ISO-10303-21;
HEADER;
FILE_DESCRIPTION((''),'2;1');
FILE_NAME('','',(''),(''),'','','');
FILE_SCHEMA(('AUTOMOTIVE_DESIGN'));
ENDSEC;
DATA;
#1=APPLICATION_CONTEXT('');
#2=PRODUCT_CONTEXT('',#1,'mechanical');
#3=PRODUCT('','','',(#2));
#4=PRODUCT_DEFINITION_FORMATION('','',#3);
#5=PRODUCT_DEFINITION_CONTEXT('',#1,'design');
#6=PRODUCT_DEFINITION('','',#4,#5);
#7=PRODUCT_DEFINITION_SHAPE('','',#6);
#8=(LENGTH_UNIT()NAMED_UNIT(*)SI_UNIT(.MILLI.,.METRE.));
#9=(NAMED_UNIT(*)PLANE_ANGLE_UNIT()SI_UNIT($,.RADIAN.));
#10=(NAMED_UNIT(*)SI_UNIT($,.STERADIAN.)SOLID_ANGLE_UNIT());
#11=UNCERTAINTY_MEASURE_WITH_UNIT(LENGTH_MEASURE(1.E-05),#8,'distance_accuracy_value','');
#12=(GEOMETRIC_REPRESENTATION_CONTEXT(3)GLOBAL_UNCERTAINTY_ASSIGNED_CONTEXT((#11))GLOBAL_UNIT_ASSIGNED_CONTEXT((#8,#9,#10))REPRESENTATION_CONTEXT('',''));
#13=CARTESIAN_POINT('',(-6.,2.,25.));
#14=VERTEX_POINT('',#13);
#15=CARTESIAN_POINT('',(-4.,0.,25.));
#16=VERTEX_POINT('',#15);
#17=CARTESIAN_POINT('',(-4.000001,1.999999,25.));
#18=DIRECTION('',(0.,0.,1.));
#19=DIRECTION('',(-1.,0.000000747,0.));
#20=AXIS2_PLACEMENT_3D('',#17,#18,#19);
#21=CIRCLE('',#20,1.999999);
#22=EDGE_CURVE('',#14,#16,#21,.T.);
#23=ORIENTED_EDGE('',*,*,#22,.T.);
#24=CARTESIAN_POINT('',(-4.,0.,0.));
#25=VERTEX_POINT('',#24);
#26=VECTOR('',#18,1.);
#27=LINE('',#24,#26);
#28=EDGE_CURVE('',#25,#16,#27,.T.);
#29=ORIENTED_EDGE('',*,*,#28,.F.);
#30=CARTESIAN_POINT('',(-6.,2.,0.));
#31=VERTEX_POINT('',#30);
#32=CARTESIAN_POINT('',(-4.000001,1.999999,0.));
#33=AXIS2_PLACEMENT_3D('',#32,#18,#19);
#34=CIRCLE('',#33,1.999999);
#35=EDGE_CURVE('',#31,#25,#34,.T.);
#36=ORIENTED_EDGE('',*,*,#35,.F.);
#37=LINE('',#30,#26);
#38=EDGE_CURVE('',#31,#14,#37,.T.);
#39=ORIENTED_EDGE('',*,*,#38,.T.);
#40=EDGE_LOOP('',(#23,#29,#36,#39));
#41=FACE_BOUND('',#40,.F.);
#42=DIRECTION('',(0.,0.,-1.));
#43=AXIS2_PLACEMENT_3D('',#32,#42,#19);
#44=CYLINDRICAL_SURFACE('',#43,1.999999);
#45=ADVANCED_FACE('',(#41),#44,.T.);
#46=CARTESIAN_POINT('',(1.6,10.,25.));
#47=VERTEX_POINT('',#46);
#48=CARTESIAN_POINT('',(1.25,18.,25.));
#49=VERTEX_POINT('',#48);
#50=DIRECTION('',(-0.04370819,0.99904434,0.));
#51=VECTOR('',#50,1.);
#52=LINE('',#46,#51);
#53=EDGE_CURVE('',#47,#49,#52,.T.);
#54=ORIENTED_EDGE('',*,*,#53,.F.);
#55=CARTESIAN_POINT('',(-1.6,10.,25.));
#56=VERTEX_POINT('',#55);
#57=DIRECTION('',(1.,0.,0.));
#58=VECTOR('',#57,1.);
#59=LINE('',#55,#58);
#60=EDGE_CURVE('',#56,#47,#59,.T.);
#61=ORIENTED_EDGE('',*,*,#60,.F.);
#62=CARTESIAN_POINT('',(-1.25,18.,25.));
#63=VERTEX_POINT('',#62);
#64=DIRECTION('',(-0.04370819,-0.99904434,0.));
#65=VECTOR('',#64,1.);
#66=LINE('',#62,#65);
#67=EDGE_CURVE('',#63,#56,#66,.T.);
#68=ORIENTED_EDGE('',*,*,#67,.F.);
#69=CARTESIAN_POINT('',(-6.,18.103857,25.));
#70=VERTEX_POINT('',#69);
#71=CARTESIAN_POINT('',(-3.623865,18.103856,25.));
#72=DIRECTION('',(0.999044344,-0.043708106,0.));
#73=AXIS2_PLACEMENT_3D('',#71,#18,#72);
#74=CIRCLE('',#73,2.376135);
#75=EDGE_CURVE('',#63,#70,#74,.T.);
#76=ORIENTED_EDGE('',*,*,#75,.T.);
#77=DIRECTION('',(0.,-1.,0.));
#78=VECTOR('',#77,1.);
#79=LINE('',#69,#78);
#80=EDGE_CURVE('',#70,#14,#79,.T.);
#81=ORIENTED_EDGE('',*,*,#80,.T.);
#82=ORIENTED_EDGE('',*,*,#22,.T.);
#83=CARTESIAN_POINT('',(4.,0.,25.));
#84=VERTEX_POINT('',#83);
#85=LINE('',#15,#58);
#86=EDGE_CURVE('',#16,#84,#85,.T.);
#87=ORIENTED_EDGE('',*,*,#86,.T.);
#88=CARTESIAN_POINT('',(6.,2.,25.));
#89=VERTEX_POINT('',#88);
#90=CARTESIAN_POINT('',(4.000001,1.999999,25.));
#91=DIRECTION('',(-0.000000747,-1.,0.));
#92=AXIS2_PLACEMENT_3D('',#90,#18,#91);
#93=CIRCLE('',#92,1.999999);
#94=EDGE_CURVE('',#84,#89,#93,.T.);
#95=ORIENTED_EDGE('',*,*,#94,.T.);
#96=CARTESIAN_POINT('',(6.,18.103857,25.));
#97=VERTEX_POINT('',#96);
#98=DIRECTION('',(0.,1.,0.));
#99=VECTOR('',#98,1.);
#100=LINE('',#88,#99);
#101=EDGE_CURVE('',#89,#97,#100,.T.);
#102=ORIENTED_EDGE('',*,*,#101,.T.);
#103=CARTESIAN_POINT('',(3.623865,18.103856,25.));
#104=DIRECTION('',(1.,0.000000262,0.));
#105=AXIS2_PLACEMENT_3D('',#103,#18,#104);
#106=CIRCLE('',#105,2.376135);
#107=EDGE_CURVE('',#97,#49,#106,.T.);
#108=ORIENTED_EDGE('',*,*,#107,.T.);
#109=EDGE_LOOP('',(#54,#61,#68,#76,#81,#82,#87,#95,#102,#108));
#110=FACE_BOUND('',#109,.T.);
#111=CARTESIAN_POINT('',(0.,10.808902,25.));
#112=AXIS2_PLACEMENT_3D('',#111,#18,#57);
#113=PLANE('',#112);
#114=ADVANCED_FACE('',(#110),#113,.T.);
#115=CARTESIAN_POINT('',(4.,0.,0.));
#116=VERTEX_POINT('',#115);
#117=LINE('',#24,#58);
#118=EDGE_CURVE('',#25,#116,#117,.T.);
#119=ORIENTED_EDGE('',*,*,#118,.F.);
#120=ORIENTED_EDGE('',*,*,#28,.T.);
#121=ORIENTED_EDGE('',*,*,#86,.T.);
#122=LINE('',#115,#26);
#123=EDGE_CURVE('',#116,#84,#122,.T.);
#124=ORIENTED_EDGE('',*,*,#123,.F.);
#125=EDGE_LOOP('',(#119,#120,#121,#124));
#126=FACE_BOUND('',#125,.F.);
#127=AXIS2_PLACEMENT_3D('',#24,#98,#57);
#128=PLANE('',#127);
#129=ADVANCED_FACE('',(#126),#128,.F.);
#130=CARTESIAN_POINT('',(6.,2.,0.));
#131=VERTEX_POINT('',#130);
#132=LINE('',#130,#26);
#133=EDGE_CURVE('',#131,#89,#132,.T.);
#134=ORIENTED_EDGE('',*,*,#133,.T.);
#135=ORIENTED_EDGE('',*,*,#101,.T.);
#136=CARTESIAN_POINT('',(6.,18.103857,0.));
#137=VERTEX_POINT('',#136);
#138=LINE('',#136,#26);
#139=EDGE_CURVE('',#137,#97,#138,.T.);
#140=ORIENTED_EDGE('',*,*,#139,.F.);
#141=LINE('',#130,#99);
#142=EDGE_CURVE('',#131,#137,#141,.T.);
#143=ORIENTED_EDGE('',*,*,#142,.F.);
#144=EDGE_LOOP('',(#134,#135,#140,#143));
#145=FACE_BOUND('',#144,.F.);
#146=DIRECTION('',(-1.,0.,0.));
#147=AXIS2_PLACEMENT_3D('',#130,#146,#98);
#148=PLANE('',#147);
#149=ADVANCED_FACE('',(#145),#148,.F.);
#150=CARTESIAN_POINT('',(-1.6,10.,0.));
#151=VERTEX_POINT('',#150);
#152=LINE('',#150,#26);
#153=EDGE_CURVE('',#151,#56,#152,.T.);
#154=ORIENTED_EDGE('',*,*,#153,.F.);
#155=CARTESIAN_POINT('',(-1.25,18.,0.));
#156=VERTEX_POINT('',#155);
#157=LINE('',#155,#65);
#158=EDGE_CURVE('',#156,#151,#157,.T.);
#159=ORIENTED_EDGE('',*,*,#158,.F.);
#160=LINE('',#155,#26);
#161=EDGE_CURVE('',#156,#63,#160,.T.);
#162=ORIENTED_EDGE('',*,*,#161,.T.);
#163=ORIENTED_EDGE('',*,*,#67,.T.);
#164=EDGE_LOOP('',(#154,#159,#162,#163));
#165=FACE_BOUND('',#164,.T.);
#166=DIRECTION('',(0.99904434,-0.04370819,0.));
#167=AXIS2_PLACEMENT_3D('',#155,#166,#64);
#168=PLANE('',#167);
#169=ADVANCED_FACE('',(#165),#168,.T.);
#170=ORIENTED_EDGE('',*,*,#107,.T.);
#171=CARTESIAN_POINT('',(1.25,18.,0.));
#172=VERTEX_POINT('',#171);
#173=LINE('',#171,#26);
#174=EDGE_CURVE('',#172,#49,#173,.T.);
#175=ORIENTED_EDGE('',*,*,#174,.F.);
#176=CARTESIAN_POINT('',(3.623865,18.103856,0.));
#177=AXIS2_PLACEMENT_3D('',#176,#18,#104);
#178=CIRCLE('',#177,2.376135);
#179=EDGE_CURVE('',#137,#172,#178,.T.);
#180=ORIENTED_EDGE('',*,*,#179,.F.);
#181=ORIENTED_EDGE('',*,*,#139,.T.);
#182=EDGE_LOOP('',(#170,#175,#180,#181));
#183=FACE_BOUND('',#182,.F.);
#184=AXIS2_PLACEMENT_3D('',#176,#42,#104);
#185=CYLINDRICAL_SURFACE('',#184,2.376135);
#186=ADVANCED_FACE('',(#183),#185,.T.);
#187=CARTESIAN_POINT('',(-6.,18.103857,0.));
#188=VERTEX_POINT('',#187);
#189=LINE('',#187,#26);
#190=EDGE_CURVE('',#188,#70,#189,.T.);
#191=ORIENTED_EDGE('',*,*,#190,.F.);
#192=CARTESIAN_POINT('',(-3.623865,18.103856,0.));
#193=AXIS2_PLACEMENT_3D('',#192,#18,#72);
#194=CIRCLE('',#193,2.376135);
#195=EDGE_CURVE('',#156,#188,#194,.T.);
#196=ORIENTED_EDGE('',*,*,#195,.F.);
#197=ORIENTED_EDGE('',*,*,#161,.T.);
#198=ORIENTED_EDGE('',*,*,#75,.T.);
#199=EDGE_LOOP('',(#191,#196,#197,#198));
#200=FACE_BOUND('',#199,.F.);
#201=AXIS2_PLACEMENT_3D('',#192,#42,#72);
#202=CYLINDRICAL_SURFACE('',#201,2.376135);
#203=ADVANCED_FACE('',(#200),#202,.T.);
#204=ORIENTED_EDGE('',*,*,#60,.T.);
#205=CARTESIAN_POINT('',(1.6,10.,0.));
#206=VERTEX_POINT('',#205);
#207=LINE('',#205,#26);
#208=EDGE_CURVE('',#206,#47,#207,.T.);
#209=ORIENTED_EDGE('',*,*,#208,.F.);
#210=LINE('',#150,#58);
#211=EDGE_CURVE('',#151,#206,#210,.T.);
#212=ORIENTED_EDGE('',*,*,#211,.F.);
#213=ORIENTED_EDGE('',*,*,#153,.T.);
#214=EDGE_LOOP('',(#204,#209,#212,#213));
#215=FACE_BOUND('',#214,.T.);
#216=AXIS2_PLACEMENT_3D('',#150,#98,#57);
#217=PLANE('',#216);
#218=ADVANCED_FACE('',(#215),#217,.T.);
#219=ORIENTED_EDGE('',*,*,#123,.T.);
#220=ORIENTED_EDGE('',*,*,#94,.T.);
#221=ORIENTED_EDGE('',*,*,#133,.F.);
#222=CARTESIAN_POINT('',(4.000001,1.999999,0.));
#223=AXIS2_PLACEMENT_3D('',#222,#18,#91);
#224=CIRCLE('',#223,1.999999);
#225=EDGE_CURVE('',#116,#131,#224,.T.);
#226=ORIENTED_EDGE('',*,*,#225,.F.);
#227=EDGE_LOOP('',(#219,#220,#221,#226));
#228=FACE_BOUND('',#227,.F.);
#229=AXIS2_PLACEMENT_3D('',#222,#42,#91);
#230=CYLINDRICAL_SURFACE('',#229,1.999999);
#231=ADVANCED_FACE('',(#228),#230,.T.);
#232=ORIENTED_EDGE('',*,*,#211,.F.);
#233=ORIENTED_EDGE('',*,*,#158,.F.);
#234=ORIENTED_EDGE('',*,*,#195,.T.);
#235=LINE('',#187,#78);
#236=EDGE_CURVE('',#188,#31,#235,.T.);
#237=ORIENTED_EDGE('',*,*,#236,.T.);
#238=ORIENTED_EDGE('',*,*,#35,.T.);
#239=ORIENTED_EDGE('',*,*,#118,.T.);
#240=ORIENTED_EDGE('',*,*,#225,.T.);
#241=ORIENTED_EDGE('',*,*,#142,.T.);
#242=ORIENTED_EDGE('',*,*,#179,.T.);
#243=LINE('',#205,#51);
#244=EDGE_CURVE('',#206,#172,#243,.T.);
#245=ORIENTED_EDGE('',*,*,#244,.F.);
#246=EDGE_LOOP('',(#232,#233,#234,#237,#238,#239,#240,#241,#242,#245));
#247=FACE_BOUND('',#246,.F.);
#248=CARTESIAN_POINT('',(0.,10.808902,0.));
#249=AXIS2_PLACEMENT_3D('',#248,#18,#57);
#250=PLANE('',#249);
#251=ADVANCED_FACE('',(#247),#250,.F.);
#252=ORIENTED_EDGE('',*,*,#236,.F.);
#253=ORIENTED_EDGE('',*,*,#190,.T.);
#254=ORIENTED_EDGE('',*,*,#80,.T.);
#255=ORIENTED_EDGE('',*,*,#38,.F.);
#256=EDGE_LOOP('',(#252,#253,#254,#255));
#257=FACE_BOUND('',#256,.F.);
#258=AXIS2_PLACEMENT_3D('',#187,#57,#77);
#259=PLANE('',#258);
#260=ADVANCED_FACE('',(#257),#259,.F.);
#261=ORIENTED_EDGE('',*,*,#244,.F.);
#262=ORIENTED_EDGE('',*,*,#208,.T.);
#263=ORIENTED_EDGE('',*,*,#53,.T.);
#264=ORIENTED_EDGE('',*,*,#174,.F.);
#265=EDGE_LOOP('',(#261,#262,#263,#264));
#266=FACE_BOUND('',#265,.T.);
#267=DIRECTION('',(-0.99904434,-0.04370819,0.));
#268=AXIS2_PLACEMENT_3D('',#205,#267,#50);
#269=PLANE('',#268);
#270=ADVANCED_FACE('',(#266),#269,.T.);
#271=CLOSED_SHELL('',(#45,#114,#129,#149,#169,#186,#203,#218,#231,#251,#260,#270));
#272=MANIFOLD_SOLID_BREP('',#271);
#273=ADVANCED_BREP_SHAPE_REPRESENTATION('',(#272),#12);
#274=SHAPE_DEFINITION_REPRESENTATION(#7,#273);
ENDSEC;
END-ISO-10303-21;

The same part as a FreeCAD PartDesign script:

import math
import FreeCAD as App
import Part
import Sketcher

V = App.Vector
Q = App.Units.Quantity

doc = App.newDocument("Part")
params = doc.addObject("Spreadsheet::Sheet", "Params")
for row, (alias, value) in enumerate([
    ("sketch1_radius", "1.999999 mm"),
    ("sketch1_width", "8 mm"),
    ("sketch1_width2", "3.2 mm"),
    ("pad1_length", "25 mm"),
], start=1):
    params.set(f"A{row}", alias)
    params.set(f"B{row}", "=" + value)
    params.setAlias(f"B{row}", alias)

body = doc.addObject("PartDesign::Body", "Body")

# Sketch on XY plane
sketch1 = body.newObject("Sketcher::SketchObject", "Sketch")
sketch1.AttachmentSupport = (doc.getObject("XY_Plane"), [""])
sketch1.MapMode = "FlatFace"
sketch1.addGeometry([
    Part.LineSegment(V(-6, 18.1, 0), V(-6, 2, 0)),  # 0
    Part.ArcOfCircle(Part.Circle(V(-4, 2, 0), V(0, 0, 1), 2), math.radians(180), math.radians(270)),  # 1
    Part.LineSegment(V(-4, 0, 0), V(4, 0, 0)),  # 2
    Part.ArcOfCircle(Part.Circle(V(4, 2, 0), V(0, 0, 1), 2), math.radians(-90), math.radians(0)),  # 3
    Part.LineSegment(V(6, 2, 0), V(6, 18.1, 0)),  # 4
    Part.ArcOfCircle(Part.Circle(V(3.6, 18.1, 0), V(0, 0, 1), 2.4), math.radians(0), math.radians(183)),  # 5
    Part.LineSegment(V(1.2, 18, 0), V(1.6, 10, 0)),  # 6
    Part.LineSegment(V(1.6, 10, 0), V(-1.6, 10, 0)),  # 7
    Part.LineSegment(V(-1.6, 10, 0), V(-1.2, 18, 0)),  # 8
    Part.ArcOfCircle(Part.Circle(V(-3.6, 18.1, 0), V(0, 0, 1), 2.4), math.radians(-3), math.radians(180)),  # 9
], False)
sketch1.addConstraint([
    Sketcher.Constraint("Tangent", 0, 2, 1, 1),
    Sketcher.Constraint("Tangent", 1, 2, 2, 1),
    Sketcher.Constraint("Tangent", 2, 2, 3, 1),
    Sketcher.Constraint("Tangent", 3, 2, 4, 1),
    Sketcher.Constraint("Tangent", 4, 2, 5, 1),
    Sketcher.Constraint("Tangent", 5, 2, 6, 1),
    Sketcher.Constraint("Coincident", 6, 2, 7, 1),
    Sketcher.Constraint("Coincident", 7, 2, 8, 1),
    Sketcher.Constraint("Tangent", 8, 2, 9, 1),
    Sketcher.Constraint("Tangent", 9, 2, 0, 1),
    Sketcher.Constraint("Vertical", 0),
    Sketcher.Constraint("Horizontal", 2),
    Sketcher.Constraint("Vertical", 4),
    Sketcher.Constraint("Horizontal", 7),
    Sketcher.Constraint("Equal", 1, 3),
    Sketcher.Constraint("Equal", 5, 9),
    Sketcher.Constraint("Symmetric", 1, 2, 2, 2, -1, 1),
    Sketcher.Constraint("Symmetric", 5, 2, 8, 2, -2),
    Sketcher.Constraint("Radius", 1, Q("1.999999 mm")),
    Sketcher.Constraint("DistanceX", 2, 1, 2, 2, Q("8 mm")),
    Sketcher.Constraint("DistanceX", 7, 2, 7, 1, Q("3.2 mm")),
    Sketcher.Constraint("DistanceY", -1, 1, 5, 2, Q("18 mm")),
    Sketcher.Constraint("DistanceY", -1, 1, 6, 2, Q("10 mm")),
    Sketcher.Constraint("DistanceX", 8, 2, 5, 2, Q("2.5 mm")),
])
sketch1.setExpression("Constraints[18]", "Params.sketch1_radius")
sketch1.setExpression("Constraints[19]", "Params.sketch1_width")
sketch1.setExpression("Constraints[20]", "Params.sketch1_width2")
pad1 = body.newObject("PartDesign::Pad", "Pad")
pad1.Profile = sketch1
pad1.setExpression("Length", "Params.pad1_length")

doc.recompute()
